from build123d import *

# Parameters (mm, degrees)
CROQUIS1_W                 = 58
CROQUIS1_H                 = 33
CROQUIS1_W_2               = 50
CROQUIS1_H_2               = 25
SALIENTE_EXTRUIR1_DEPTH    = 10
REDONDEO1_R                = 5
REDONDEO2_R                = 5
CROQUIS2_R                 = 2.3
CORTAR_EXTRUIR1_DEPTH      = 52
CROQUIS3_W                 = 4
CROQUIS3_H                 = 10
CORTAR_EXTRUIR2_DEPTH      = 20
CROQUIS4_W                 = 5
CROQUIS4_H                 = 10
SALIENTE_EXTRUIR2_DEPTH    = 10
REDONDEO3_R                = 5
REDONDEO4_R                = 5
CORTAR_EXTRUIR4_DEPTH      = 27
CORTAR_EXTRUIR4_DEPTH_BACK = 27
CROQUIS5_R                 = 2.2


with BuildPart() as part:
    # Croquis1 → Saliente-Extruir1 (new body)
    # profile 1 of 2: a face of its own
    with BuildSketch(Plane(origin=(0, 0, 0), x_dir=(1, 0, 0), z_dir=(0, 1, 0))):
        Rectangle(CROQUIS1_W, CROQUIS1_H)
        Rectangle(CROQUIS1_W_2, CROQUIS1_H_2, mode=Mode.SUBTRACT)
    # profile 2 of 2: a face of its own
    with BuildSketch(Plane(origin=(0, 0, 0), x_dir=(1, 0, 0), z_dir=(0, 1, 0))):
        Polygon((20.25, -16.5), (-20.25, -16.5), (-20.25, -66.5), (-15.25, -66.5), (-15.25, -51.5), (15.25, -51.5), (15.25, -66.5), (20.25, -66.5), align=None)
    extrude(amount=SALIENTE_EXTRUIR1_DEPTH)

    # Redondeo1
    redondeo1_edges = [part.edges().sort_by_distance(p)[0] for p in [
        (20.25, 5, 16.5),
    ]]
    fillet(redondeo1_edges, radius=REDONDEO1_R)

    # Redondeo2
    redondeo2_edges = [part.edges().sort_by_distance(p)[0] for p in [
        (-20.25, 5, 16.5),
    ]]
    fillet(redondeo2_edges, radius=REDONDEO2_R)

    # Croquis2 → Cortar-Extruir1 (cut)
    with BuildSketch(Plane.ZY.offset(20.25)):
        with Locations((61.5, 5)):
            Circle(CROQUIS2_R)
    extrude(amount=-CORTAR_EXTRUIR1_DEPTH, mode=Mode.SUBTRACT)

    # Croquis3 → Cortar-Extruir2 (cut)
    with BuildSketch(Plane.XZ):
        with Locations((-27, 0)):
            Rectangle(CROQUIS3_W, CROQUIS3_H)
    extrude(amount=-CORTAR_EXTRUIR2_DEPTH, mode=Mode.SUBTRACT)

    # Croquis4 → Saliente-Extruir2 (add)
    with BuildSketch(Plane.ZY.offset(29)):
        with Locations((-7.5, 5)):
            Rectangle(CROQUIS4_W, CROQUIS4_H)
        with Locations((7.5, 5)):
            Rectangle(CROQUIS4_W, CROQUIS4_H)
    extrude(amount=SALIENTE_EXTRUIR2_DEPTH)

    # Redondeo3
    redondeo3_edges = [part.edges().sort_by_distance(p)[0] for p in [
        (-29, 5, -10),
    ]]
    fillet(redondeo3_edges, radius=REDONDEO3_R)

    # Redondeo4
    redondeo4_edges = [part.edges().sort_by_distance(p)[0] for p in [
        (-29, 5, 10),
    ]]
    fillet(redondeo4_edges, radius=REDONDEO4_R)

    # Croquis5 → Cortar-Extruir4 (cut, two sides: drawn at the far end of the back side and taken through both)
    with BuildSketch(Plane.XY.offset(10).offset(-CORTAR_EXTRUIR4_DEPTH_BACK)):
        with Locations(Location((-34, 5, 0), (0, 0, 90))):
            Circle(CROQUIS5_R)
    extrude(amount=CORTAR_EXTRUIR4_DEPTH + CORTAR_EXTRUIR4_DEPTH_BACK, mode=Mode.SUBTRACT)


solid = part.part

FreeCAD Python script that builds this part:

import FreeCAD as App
import Part
import Sketcher

V = App.Vector
Q = App.Units.Quantity


def edges_at(feature, points):
    """Names of the edges that pass closest to the given points."""
    edges = feature.Shape.Edges
    near = lambda p: min(range(len(edges)), key=lambda i: edges[i].distToShape(Part.Vertex(*p))[0])
    return sorted({f"Edge{near(p) + 1}" for p in points})

doc = App.newDocument("Part")
body = doc.addObject("PartDesign::Body", "Body")

sketch1 = body.newObject("Sketcher::SketchObject", "Sketch")
sketch1.AttachmentSupport = (doc.getObject("XZ_Plane"), [""])
sketch1.MapMode = "FlatFace"
sketch1.addGeometry([
    Part.LineSegment(V(-29, -16.5, 0), V(-29, 16.5, 0)),
    Part.LineSegment(V(-29, 16.5, 0), V(-20.25, 16.5, 0)),
    Part.LineSegment(V(-20.25, 16.5, 0), V(-20.25, 66.5, 0)),
    Part.LineSegment(V(-20.25, 66.5, 0), V(-15.25, 66.5, 0)),
    Part.LineSegment(V(-15.25, 66.5, 0), V(-15.25, 51.5, 0)),
    Part.LineSegment(V(-15.25, 51.5, 0), V(15.25, 51.5, 0)),
    Part.LineSegment(V(15.25, 51.5, 0), V(15.25, 66.5, 0)),
    Part.LineSegment(V(15.25, 66.5, 0), V(20.25, 66.5, 0)),
    Part.LineSegment(V(20.25, 66.5, 0), V(20.25, 16.5, 0)),
    Part.LineSegment(V(20.25, 16.5, 0), V(29, 16.5, 0)),
    Part.LineSegment(V(29, 16.5, 0), V(29, -16.5, 0)),
    Part.LineSegment(V(29, -16.5, 0), V(-29, -16.5, 0)),
    Part.LineSegment(V(25, 12.5, 0), V(-25, 12.5, 0)),
    Part.LineSegment(V(-25, 12.5, 0), V(-25, -12.5, 0)),
    Part.LineSegment(V(-25, -12.5, 0), V(25, -12.5, 0)),
    Part.LineSegment(V(25, -12.5, 0), V(25, 12.5, 0)),
], False)
sketch1.addConstraint([
    Sketcher.Constraint("Coincident", 0, 2, 1, 1),
    Sketcher.Constraint("Coincident", 1, 2, 2, 1),
    Sketcher.Constraint("Coincident", 2, 2, 3, 1),
    Sketcher.Constraint("Coincident", 3, 2, 4, 1),
    Sketcher.Constraint("Coincident", 4, 2, 5, 1),
    Sketcher.Constraint("Coincident", 5, 2, 6, 1),
    Sketcher.Constraint("Coincident", 6, 2, 7, 1),
    Sketcher.Constraint("Coincident", 7, 2, 8, 1),
    Sketcher.Constraint("Coincident", 8, 2, 9, 1),
    Sketcher.Constraint("Coincident", 9, 2, 10, 1),
    Sketcher.Constraint("Coincident", 10, 2, 11, 1),
    Sketcher.Constraint("Coincident", 11, 2, 0, 1),
    Sketcher.Constraint("Coincident", 12, 2, 13, 1),
    Sketcher.Constraint("Coincident", 13, 2, 14, 1),
    Sketcher.Constraint("Coincident", 14, 2, 15, 1),
    Sketcher.Constraint("Coincident", 15, 2, 12, 1),
    Sketcher.Constraint("Vertical", 0),
    Sketcher.Constraint("Horizontal", 1),
    Sketcher.Constraint("Vertical", 2),
    Sketcher.Constraint("Horizontal", 3),
    Sketcher.Constraint("Vertical", 4),
    Sketcher.Constraint("Horizontal", 5),
    Sketcher.Constraint("Vertical", 6),
    Sketcher.Constraint("Horizontal", 7),
    Sketcher.Constraint("Vertical", 8),
    Sketcher.Constraint("Horizontal", 9),
    Sketcher.Constraint("Vertical", 10),
    Sketcher.Constraint("Horizontal", 11),
    Sketcher.Constraint("Horizontal", 12),
    Sketcher.Constraint("Vertical", 13),
    Sketcher.Constraint("Horizontal", 14),
    Sketcher.Constraint("Vertical", 15),
    Sketcher.Constraint("Symmetric", 0, 2, 10, 2, -1, 1),
    Sketcher.Constraint("Symmetric", 12, 2, 14, 2, -1, 1),
    Sketcher.Constraint("Symmetric", 3, 2, 6, 2, -2),
    Sketcher.Constraint("Symmetric", 1, 2, 8, 2, -2),
    Sketcher.Constraint("Equal", 14, 2),
    Sketcher.Constraint("DistanceX", 3, 1, 3, 2, Q("5 mm")),
    Sketcher.Constraint("DistanceX", 11, 2, 11, 1, Q("58 mm")),
    Sketcher.Constraint("DistanceX", 12, 2, 12, 1, Q("50 mm")),
    Sketcher.Constraint("DistanceY", 0, 1, 0, 2, Q("33 mm")),
    Sketcher.Constraint("DistanceY", 4, 2, 4, 1, Q("15 mm")),
    Sketcher.Constraint("DistanceY", 13, 2, 13, 1, Q("25 mm")),
    Sketcher.Constraint("DistanceX", 5, 1, 5, 2, Q("30.5 mm")),
])
pad1 = body.newObject("PartDesign::Pad", "Pad")
pad1.Profile = sketch1
pad1.Length = 10
pad1.Reversed = True
doc.recompute()

fillet = body.newObject("PartDesign::Fillet", "Fillet")
fillet.Base = (pad1, edges_at(pad1, [(20.25, 5, 16.5)]))
fillet.Radius = 5
doc.recompute()

fillet2 = body.newObject("PartDesign::Fillet", "Fillet001")
fillet2.Base = (fillet, edges_at(fillet, [(-20.25, 5, 16.5)]))
fillet2.Radius = 5

sketch2 = body.newObject("Sketcher::SketchObject", "Sketch001")
sketch2.AttachmentSupport = (doc.getObject("YZ_Plane"), [""])
sketch2.MapMode = "FlatFace"
sketch2.AttachmentOffset = App.Placement(V(0, 0, -20.25), App.Rotation())
sketch2.addGeometry(Part.Circle(V(5, 61.5, 0), V(0, 0, 1), 2.3), False)
sketch2.addConstraint([
    Sketcher.Constraint("Diameter", 0, Q("4.6 mm")),
    Sketcher.Constraint("DistanceX", -1, 1, 0, 3, Q("5 mm")),
    Sketcher.Constraint("DistanceY", -1, 1, 0, 3, Q("61.5 mm")),
])
pocket1 = body.newObject("PartDesign::Pocket", "Pocket")
pocket1.Profile = sketch2
pocket1.Length = 52
pocket1.Reversed = True

sketch3 = body.newObject("Sketcher::SketchObject", "Sketch002")
sketch3.AttachmentSupport = (doc.getObject("XZ_Plane"), [""])
sketch3.MapMode = "FlatFace"
sketch3.addGeometry([
    Part.LineSegment(V(-29, 5, 0), V(-29, -5, 0)),
    Part.LineSegment(V(-29, -5, 0), V(-25, -5, 0)),
    Part.LineSegment(V(-25, -5, 0), V(-25, 5, 0)),
    Part.LineSegment(V(-25, 5, 0), V(-29, 5, 0)),
], False)
sketch3.addConstraint([
    Sketcher.Constraint("Coincident", 0, 2, 1, 1),
    Sketcher.Constraint("Coincident", 1, 2, 2, 1),
    Sketcher.Constraint("Coincident", 2, 2, 3, 1),
    Sketcher.Constraint("Coincident", 3, 2, 0, 1),
    Sketcher.Constraint("Vertical", 0),
    Sketcher.Constraint("Horizontal", 1),
    Sketcher.Constraint("Vertical", 2),
    Sketcher.Constraint("Horizontal", 3),
    Sketcher.Constraint("DistanceX", 1, 1, 1, 2, Q("4 mm")),
    Sketcher.Constraint("DistanceY", 0, 2, 0, 1, Q("10 mm")),
    Sketcher.Constraint("DistanceX", 0, 2, -1, 1, Q("29 mm")),
    Sketcher.Constraint("DistanceY", 0, 2, -1, 1, Q("5 mm")),
])
pocket2 = body.newObject("PartDesign::Pocket", "Pocket001")
pocket2.Profile = sketch3
pocket2.Length = 20

sketch4 = body.newObject("Sketcher::SketchObject", "Sketch003")
sketch4.AttachmentSupport = (doc.getObject("YZ_Plane"), [""])
sketch4.MapMode = "FlatFace"
sketch4.AttachmentOffset = App.Placement(V(0, 0, -29), App.Rotation())
sketch4.addGeometry([
    Part.LineSegment(V(10, -10, 0), V(0, -10, 0)),
    Part.LineSegment(V(0, -10, 0), V(0, -5, 0)),
    Part.LineSegment(V(0, -5, 0), V(10, -5, 0)),
    Part.LineSegment(V(10, -5, 0), V(10, -10, 0)),
    Part.LineSegment(V(10, 5, 0), V(0, 5, 0)),
    Part.LineSegment(V(0, 5, 0), V(0, 10, 0)),
    Part.LineSegment(V(0, 10, 0), V(10, 10, 0)),
    Part.LineSegment(V(10, 10, 0), V(10, 5, 0)),
], False)
sketch4.addConstraint([
    Sketcher.Constraint("Coincident", 0, 2, 1, 1),
    Sketcher.Constraint("Coincident", 1, 2, 2, 1),
    Sketcher.Constraint("Coincident", 2, 2, 3, 1),
    Sketcher.Constraint("Coincident", 3, 2, 0, 1),
    Sketcher.Constraint("Coincident", 4, 2, 5, 1),
    Sketcher.Constraint("Coincident", 5, 2, 6, 1),
    Sketcher.Constraint("Coincident", 6, 2, 7, 1),
    Sketcher.Constraint("Coincident", 7, 2, 4, 1),
    Sketcher.Constraint("Horizontal", 0),
    Sketcher.Constraint("Vertical", 1),
    Sketcher.Constraint("Horizontal", 2),
    Sketcher.Constraint("Vertical", 3),
    Sketcher.Constraint("Horizontal", 4),
    Sketcher.Constraint("Vertical", 5),
    Sketcher.Constraint("Horizontal", 6),
    Sketcher.Constraint("Vertical", 7),
    Sketcher.Constraint("Symmetric", 1, 2, 4, 2, -1, 1),
    Sketcher.Constraint("Symmetric", 0, 2, 5, 2, -1),
    Sketcher.Constraint("Vertical", 3, 2, 6, 2),
    Sketcher.Constraint("DistanceX", 0, 2, 0, 1, Q("10 mm")),
    Sketcher.Constraint("DistanceY", 1, 1, 1, 2, Q("5 mm")),
    Sketcher.Constraint("DistanceY", 0, 2, -1, 1, Q("10 mm")),
])
pad2 = body.newObject("PartDesign::Pad", "Pad001")
pad2.Profile = sketch4
pad2.Length = 10
pad2.Reversed = True
doc.recompute()

fillet3 = body.newObject("PartDesign::Fillet", "Fillet002")
fillet3.Base = (pad2, edges_at(pad2, [(-29, 5, -10)]))
fillet3.Radius = 5
doc.recompute()

fillet4 = body.newObject("PartDesign::Fillet", "Fillet003")
fillet4.Base = (fillet3, edges_at(fillet3, [(-29, 5, 10)]))
fillet4.Radius = 5

sketch5 = body.newObject("Sketcher::SketchObject", "Sketch004")
sketch5.AttachmentSupport = (doc.getObject("XY_Plane"), [""])
sketch5.MapMode = "FlatFace"
sketch5.AttachmentOffset = App.Placement(V(0, 0, 10), App.Rotation())
sketch5.addGeometry(Part.Circle(V(-34, 5, 0), V(0, 0, 1), 2.2), False)
sketch5.addConstraint([
    Sketcher.Constraint("Diameter", 0, Q("4.4 mm")),
    Sketcher.Constraint("DistanceX", 0, 3, -1, 1, Q("34 mm")),
    Sketcher.Constraint("DistanceY", -1, 1, 0, 3, Q("5 mm")),
])
pocket3 = body.newObject("PartDesign::Pocket", "Pocket002")
pocket3.Profile = sketch5
pocket3.Type = "ThroughAll"
pocket3.Midplane = True

doc.recompute()
